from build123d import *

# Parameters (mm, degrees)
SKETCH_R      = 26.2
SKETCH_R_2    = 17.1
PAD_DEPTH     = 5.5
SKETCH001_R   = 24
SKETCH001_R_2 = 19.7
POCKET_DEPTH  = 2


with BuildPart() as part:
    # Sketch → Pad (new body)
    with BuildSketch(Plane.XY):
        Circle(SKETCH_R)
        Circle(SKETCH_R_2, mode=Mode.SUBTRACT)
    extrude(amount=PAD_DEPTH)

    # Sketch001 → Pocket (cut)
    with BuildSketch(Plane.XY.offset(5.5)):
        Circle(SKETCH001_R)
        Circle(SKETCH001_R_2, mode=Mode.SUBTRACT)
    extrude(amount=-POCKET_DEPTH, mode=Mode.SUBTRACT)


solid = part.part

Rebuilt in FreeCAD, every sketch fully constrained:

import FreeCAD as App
import Part
import Sketcher

V = App.Vector
Q = App.Units.Quantity

doc = App.newDocument("Part")
body = doc.addObject("PartDesign::Body", "Body")

# Sketch on XY plane
sketch1 = doc.addObject("Sketcher::SketchObject", "Sketch")
body.addObject(sketch1)
sketch1.AttachmentSupport = (doc.XY_Plane, [""])
sketch1.MapMode = "FlatFace"
sketch1.addGeometry([
    Part.Circle(V(0, 0, 0), V(0, 0, 1), 26),
    Part.Circle(V(0, 0, 0), V(0, 0, 1), 17),
], False)
sketch1.addConstraint([
    Sketcher.Constraint("Coincident", 0, 3, -1, 1),
    Sketcher.Constraint("Coincident", 1, 3, -1, 1),
    Sketcher.Constraint("Diameter", 0, Q("52.4 mm")),
    Sketcher.Constraint("Diameter", 1, Q("34.2 mm")),
])
pad1 = doc.addObject("PartDesign::Pad", "Pad")
body.addObject(pad1)
pad1.Profile = sketch1
pad1.Length = 5.5

# Sketch on XY plane
sketch2 = doc.addObject("Sketcher::SketchObject", "Sketch001")
body.addObject(sketch2)
sketch2.AttachmentSupport = (doc.XY_Plane, [""])
sketch2.MapMode = "FlatFace"
sketch2.AttachmentOffset = App.Placement(V(0, 0, 5.5), App.Rotation())
sketch2.addGeometry([
    Part.Circle(V(0, 0, 0), V(0, 0, 1), 24),
    Part.Circle(V(0, 0, 0), V(0, 0, 1), 20),
], False)
sketch2.addConstraint([
    Sketcher.Constraint("Coincident", 0, 3, -1, 1),
    Sketcher.Constraint("Coincident", 1, 3, -1, 1),
    Sketcher.Constraint("Diameter", 0, Q("48 mm")),
    Sketcher.Constraint("Diameter", 1, Q("39.4 mm")),
])
pocket1 = doc.addObject("PartDesign::Pocket", "Pocket")
body.addObject(pocket1)
pocket1.Profile = sketch2
pocket1.Length = 2

doc.recompute()
